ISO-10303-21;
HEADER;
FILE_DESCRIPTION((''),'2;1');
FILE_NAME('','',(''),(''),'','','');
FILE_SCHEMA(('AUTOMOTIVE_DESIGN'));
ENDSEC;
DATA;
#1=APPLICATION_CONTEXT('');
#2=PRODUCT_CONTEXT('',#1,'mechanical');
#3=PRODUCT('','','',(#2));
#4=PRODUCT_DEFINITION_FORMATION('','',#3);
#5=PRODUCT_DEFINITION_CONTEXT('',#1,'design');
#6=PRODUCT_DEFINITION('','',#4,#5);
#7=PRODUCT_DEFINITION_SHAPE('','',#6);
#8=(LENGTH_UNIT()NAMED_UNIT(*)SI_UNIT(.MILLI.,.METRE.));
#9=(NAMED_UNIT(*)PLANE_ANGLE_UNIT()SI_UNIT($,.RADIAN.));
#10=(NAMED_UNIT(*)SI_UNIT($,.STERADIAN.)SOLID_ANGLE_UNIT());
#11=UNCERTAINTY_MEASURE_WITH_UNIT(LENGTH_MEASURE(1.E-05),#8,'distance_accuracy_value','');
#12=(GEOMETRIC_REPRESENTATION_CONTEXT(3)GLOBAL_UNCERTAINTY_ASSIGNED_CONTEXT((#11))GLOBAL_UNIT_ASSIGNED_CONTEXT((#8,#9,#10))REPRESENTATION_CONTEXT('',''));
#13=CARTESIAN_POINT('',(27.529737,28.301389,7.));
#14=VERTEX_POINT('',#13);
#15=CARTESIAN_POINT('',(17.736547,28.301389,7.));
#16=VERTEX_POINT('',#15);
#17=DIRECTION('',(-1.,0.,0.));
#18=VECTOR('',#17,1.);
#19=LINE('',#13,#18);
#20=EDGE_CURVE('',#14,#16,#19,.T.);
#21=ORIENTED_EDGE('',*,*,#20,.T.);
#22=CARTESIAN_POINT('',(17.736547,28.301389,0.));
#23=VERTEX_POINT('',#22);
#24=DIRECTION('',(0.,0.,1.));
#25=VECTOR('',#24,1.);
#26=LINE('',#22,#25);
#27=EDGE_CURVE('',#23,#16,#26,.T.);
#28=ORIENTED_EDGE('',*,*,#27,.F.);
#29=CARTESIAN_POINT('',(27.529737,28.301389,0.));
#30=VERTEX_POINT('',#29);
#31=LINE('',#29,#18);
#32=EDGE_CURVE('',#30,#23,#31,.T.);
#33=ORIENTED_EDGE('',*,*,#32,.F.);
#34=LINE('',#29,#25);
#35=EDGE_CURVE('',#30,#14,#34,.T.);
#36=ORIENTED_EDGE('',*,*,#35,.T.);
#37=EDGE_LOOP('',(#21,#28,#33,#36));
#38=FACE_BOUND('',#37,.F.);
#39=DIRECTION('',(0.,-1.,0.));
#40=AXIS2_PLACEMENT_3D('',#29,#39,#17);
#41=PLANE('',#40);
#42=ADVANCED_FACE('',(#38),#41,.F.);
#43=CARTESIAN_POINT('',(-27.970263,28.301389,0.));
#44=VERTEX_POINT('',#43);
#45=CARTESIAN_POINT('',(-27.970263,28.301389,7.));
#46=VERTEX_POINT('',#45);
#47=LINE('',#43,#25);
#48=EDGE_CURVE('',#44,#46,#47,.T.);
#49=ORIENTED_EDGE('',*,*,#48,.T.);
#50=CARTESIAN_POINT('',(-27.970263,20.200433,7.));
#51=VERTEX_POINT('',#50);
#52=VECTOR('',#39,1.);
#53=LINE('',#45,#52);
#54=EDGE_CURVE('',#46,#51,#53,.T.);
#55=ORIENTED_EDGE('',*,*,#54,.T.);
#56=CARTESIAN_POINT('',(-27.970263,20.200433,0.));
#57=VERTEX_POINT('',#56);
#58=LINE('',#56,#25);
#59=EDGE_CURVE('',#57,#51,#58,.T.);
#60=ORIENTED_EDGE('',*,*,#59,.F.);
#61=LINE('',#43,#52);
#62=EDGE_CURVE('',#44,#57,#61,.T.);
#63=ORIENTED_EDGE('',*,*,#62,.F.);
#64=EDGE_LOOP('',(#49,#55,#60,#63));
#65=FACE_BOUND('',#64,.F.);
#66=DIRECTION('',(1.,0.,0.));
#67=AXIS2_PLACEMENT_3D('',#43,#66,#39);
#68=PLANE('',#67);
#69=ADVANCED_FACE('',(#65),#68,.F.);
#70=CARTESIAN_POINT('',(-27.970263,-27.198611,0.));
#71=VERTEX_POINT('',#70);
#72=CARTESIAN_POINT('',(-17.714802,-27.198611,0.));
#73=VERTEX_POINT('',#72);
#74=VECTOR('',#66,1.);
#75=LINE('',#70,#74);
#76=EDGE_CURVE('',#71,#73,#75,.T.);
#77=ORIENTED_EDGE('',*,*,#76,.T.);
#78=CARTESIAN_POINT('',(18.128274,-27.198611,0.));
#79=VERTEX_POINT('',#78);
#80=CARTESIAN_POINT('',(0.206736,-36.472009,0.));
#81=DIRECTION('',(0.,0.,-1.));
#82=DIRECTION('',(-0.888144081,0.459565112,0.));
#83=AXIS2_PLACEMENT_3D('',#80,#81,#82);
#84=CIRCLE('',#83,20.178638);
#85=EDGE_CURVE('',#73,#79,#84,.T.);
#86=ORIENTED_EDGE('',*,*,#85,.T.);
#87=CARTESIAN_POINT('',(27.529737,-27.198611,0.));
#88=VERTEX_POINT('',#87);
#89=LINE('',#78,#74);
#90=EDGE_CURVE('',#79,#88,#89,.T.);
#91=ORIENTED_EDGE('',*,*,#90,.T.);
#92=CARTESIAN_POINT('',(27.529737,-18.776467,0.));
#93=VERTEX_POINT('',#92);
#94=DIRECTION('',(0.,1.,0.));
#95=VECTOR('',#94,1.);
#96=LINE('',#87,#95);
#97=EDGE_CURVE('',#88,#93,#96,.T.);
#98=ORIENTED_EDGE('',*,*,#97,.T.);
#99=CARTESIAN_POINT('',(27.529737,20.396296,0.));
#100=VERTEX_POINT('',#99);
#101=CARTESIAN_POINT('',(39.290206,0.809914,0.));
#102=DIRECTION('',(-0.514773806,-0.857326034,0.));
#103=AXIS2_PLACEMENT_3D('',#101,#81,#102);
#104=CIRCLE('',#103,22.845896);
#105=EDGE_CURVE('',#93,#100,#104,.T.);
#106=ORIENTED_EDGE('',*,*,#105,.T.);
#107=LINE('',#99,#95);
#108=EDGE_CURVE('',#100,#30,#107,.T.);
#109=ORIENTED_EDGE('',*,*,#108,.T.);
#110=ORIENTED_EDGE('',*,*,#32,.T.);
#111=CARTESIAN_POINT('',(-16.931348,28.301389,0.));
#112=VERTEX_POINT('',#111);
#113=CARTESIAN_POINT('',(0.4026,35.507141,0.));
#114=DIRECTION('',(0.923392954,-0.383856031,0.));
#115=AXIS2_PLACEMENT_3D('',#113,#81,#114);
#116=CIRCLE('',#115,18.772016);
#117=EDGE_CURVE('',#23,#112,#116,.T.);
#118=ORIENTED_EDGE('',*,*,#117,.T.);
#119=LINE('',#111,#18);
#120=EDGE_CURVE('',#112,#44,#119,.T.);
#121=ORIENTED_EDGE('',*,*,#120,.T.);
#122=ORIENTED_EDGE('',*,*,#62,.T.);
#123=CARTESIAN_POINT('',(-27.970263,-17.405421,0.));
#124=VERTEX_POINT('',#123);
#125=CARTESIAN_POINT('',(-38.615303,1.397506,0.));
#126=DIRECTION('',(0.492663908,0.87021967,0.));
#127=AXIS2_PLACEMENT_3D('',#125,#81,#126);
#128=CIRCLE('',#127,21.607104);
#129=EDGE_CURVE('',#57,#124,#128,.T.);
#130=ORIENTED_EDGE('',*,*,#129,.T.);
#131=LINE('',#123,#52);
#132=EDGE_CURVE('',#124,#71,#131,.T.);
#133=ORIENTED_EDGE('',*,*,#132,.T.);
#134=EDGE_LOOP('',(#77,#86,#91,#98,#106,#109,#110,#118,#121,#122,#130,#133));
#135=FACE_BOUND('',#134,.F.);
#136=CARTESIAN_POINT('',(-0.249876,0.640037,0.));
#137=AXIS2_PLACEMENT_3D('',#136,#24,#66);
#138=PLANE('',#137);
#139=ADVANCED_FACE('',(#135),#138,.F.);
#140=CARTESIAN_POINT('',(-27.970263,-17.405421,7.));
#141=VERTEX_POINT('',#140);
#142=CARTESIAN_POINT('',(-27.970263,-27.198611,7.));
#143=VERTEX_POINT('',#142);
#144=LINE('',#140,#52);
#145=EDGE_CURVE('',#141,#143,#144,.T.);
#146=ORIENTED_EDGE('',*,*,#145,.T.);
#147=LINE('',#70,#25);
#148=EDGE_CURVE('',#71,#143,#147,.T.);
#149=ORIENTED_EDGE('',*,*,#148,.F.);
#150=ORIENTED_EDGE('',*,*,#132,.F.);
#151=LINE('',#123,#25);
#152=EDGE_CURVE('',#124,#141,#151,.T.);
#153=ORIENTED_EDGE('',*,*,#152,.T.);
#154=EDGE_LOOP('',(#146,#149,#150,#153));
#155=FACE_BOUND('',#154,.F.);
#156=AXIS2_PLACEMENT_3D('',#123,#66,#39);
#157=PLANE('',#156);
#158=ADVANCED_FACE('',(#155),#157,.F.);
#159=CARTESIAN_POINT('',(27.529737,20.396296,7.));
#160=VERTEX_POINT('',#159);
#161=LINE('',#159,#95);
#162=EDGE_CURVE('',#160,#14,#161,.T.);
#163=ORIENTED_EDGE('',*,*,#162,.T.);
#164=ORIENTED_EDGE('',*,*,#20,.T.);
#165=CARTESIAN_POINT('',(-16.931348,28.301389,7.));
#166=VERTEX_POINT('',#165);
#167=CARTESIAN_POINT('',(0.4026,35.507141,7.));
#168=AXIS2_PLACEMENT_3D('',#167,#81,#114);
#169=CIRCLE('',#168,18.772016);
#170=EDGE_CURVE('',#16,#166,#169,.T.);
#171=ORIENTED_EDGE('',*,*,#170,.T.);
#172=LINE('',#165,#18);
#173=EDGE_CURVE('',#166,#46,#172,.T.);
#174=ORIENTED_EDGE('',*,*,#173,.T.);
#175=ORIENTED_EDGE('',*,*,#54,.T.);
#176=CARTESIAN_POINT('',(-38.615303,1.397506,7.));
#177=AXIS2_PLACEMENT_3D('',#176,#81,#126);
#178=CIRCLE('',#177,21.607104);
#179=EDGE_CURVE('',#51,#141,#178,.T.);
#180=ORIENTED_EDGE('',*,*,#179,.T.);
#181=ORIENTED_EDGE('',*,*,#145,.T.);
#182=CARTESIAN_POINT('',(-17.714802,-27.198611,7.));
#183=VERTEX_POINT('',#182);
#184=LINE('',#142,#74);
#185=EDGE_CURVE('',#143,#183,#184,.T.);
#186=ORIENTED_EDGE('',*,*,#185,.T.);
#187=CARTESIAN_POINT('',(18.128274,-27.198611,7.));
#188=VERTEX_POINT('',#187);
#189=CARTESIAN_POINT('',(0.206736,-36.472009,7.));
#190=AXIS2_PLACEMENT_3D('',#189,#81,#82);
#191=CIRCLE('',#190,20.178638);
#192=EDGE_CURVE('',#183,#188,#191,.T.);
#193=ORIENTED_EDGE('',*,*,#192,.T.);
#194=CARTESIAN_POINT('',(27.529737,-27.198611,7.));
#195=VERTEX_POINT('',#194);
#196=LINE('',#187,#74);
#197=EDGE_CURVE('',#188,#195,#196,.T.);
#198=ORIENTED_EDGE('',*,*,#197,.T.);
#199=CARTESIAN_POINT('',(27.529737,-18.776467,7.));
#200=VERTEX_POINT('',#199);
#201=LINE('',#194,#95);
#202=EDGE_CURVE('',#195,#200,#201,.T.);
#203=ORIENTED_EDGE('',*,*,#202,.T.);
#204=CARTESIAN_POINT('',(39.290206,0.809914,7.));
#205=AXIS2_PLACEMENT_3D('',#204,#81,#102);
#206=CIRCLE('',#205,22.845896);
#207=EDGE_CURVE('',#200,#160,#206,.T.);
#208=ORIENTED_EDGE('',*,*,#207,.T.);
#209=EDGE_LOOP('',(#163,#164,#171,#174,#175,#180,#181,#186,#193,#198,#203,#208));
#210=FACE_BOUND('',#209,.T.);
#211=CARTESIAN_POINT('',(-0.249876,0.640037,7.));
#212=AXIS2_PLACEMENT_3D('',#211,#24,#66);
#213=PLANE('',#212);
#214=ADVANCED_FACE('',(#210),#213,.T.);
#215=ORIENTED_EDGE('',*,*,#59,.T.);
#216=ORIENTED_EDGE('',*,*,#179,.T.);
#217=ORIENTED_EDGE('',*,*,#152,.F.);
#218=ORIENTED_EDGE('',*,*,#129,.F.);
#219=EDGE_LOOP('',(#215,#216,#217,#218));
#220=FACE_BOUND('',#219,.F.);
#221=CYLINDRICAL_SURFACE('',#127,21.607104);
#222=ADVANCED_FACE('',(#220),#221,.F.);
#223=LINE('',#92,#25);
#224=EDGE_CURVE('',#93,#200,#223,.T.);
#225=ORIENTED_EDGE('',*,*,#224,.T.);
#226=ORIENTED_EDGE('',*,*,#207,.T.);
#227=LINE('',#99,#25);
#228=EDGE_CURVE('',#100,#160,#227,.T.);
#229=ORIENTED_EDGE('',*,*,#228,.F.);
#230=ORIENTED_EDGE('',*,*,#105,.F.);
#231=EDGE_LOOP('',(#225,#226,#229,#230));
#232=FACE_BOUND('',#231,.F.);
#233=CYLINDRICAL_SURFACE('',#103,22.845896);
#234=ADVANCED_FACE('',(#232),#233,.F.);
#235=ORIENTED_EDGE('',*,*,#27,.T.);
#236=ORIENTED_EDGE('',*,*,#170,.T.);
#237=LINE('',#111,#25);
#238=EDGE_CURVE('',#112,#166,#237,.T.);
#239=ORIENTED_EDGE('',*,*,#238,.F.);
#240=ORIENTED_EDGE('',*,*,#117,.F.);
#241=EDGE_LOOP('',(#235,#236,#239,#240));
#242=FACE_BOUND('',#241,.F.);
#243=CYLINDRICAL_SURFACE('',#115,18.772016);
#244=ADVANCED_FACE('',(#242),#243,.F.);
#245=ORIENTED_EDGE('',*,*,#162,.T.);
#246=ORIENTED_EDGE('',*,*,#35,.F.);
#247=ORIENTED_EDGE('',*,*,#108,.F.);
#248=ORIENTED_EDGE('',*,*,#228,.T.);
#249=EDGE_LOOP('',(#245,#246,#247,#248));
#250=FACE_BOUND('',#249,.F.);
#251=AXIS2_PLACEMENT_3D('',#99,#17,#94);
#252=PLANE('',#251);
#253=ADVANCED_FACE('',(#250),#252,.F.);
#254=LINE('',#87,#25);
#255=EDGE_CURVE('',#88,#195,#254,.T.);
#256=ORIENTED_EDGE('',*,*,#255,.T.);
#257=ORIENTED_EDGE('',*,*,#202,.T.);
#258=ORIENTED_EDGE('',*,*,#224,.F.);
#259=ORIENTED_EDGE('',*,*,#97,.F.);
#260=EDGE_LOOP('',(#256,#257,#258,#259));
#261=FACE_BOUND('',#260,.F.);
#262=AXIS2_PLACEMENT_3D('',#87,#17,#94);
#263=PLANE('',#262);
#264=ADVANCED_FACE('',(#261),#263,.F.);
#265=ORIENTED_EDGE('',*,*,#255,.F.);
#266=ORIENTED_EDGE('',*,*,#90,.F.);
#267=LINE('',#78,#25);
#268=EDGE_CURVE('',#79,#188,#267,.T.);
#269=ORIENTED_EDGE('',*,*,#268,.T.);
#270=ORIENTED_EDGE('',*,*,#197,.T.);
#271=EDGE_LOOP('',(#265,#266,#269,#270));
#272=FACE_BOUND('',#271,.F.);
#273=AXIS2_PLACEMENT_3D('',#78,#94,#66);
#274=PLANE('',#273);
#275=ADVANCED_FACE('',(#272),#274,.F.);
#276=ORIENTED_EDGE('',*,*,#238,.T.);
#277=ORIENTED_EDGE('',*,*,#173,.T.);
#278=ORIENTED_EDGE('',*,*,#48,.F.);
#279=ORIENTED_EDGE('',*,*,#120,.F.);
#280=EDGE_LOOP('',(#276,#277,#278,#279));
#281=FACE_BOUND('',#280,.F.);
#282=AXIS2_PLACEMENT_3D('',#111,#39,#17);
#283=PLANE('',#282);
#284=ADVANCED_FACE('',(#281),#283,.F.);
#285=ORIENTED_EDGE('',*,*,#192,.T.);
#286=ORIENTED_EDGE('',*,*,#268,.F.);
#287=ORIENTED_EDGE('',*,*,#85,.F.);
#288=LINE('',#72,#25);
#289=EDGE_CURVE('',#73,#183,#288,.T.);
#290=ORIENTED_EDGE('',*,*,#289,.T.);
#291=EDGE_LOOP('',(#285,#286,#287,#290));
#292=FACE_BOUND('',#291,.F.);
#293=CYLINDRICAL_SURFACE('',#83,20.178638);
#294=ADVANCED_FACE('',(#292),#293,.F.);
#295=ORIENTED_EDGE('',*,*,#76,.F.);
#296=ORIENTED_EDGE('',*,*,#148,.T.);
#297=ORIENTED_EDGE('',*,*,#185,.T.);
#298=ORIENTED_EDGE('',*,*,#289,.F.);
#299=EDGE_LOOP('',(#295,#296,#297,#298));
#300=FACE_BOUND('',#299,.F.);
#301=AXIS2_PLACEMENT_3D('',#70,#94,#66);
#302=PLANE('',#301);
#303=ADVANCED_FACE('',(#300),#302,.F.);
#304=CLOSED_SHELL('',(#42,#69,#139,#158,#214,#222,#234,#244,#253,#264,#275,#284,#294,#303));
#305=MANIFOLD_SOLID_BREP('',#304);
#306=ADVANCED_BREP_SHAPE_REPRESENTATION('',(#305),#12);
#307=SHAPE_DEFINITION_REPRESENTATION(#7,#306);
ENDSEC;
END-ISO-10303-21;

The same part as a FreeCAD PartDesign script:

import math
import FreeCAD as App
import Part
import Sketcher
from FreeCAD import Vector
Q = App.Units.Quantity

doc = App.newDocument("Part")
body = doc.addObject("PartDesign::Body", "Body")

sketch1 = body.newObject("Sketcher::SketchObject", "Sketch")
sketch1.AttachmentSupport = (doc.getObject("XY_Plane"), [""])
sketch1.MapMode = "FlatFace"
sketch1.addGeometry(Part.LineSegment(Vector(-17, 28, 0), Vector(-28, 28, 0)), False)
sketch1.addGeometry(Part.LineSegment(Vector(-28, 28, 0), Vector(-28, 20, 0)), False)
sketch1.addGeometry(Part.ArcOfCircle(Part.Circle(Vector(-39, 1, 0), Vector(0, 0, 1), 22), math.radians(-60), math.radians(60)), False)
sketch1.addGeometry(Part.LineSegment(Vector(-28, -17, 0), Vector(-28, -27, 0)), False)
sketch1.addGeometry(Part.LineSegment(Vector(-28, -27, 0), Vector(-18, -27, 0)), False)
sketch1.addGeometry(Part.ArcOfCircle(Part.Circle(Vector(0, -36, 0), Vector(0, 0, 1), 20), math.radians(27), math.radians(153)), False)
sketch1.addGeometry(Part.LineSegment(Vector(18, -27, 0), Vector(28, -27, 0)), False)
sketch1.addGeometry(Part.LineSegment(Vector(28, -27, 0), Vector(28, -19, 0)), False)
sketch1.addGeometry(Part.ArcOfCircle(Part.Circle(Vector(39, 1, 0), Vector(0, 0, 1), 23), math.radians(121), math.radians(239)), False)
sketch1.addGeometry(Part.LineSegment(Vector(28, 20, 0), Vector(28, 28, 0)), False)
sketch1.addGeometry(Part.LineSegment(Vector(28, 28, 0), Vector(18, 28, 0)), False)
sketch1.addGeometry(Part.ArcOfCircle(Part.Circle(Vector(0, 36, 0), Vector(0, 0, 1), 19), math.radians(-157), math.radians(-23)), False)
sketch1.addConstraint(Sketcher.Constraint("Coincident", 0, 2, 1, 1))
sketch1.addConstraint(Sketcher.Constraint("Coincident", 1, 2, 2, 2))
sketch1.addConstraint(Sketcher.Constraint("Coincident", 2, 1, 3, 1))
sketch1.addConstraint(Sketcher.Constraint("Coincident", 3, 2, 4, 1))
sketch1.addConstraint(Sketcher.Constraint("Coincident", 4, 2, 5, 2))
sketch1.addConstraint(Sketcher.Constraint("Coincident", 5, 1, 6, 1))
sketch1.addConstraint(Sketcher.Constraint("Coincident", 6, 2, 7, 1))
sketch1.addConstraint(Sketcher.Constraint("Coincident", 7, 2, 8, 2))
sketch1.addConstraint(Sketcher.Constraint("Coincident", 8, 1, 9, 1))
sketch1.addConstraint(Sketcher.Constraint("Coincident", 9, 2, 10, 1))
sketch1.addConstraint(Sketcher.Constraint("Coincident", 10, 2, 11, 2))
sketch1.addConstraint(Sketcher.Constraint("Coincident", 11, 1, 0, 1))
sketch1.addConstraint(Sketcher.Constraint("Horizontal", 0))
sketch1.addConstraint(Sketcher.Constraint("Vertical", 1))
sketch1.addConstraint(Sketcher.Constraint("Vertical", 3))
sketch1.addConstraint(Sketcher.Constraint("Horizontal", 4))
sketch1.addConstraint(Sketcher.Constraint("Horizontal", 6))
sketch1.addConstraint(Sketcher.Constraint("Vertical", 7))
sketch1.addConstraint(Sketcher.Constraint("Vertical", 9))
sketch1.addConstraint(Sketcher.Constraint("Horizontal", 10))
sketch1.addConstraint(Sketcher.Constraint("Horizontal", 4, 2, 5, 1))
sketch1.addConstraint(Sketcher.Constraint("Horizontal", 0, 2, 9, 2))
sketch1.addConstraint(Sketcher.Constraint("Vertical", 1, 2, 2, 1))
sketch1.addConstraint(Sketcher.Constraint("Vertical", 7, 2, 8, 1))
sketch1.addConstraint(Sketcher.Constraint("Equal", 10, 3))
sketch1.addConstraint(Sketcher.Constraint("DistanceY", 3, 2, 0, 2, Q("55.5 mm")))
sketch1.addConstraint(Sketcher.Constraint("DistanceX", 3, 2, 6, 2, Q("55.5 mm")))
sketch1.addConstraint(Sketcher.Constraint("Radius", 5, Q("20.178638 mm")))
sketch1.addConstraint(Sketcher.Constraint("Radius", 2, Q("21.607104 mm")))
sketch1.addConstraint(Sketcher.Constraint("Radius", 8, Q("22.845896 mm")))
sketch1.addConstraint(Sketcher.Constraint("Radius", 11, Q("18.772016 mm")))
sketch1.addConstraint(Sketcher.Constraint("DistanceX", 0, 2, 5, 3, Q("28.176999 mm")))
sketch1.addConstraint(Sketcher.Constraint("DistanceX", 4, 1, 4, 2, Q("10.255461 mm")))
sketch1.addConstraint(Sketcher.Constraint("DistanceX", 10, 2, 10, 1, Q("9.79319 mm")))
sketch1.addConstraint(Sketcher.Constraint("DistanceX", -1, 1, 11, 3, Q("0.4026 mm")))
sketch1.addConstraint(Sketcher.Constraint("DistanceX", 2, 3, 4, 2, Q("20.900501 mm")))
sketch1.addConstraint(Sketcher.Constraint("DistanceX", 0, 2, 0, 1, Q("11.038915 mm")))
sketch1.addConstraint(Sketcher.Constraint("DistanceY", 7, 1, 7, 2, Q("8.422144 mm")))
sketch1.addConstraint(Sketcher.Constraint("DistanceY", 9, 1, 9, 2, Q("7.905093 mm")))
sketch1.addConstraint(Sketcher.Constraint("DistanceY", 5, 3, -1, 1, Q("36.472009 mm")))
pad1 = body.newObject("PartDesign::Pad", "Pad")
pad1.Profile = sketch1
pad1.Length = 7

doc.recompute()
